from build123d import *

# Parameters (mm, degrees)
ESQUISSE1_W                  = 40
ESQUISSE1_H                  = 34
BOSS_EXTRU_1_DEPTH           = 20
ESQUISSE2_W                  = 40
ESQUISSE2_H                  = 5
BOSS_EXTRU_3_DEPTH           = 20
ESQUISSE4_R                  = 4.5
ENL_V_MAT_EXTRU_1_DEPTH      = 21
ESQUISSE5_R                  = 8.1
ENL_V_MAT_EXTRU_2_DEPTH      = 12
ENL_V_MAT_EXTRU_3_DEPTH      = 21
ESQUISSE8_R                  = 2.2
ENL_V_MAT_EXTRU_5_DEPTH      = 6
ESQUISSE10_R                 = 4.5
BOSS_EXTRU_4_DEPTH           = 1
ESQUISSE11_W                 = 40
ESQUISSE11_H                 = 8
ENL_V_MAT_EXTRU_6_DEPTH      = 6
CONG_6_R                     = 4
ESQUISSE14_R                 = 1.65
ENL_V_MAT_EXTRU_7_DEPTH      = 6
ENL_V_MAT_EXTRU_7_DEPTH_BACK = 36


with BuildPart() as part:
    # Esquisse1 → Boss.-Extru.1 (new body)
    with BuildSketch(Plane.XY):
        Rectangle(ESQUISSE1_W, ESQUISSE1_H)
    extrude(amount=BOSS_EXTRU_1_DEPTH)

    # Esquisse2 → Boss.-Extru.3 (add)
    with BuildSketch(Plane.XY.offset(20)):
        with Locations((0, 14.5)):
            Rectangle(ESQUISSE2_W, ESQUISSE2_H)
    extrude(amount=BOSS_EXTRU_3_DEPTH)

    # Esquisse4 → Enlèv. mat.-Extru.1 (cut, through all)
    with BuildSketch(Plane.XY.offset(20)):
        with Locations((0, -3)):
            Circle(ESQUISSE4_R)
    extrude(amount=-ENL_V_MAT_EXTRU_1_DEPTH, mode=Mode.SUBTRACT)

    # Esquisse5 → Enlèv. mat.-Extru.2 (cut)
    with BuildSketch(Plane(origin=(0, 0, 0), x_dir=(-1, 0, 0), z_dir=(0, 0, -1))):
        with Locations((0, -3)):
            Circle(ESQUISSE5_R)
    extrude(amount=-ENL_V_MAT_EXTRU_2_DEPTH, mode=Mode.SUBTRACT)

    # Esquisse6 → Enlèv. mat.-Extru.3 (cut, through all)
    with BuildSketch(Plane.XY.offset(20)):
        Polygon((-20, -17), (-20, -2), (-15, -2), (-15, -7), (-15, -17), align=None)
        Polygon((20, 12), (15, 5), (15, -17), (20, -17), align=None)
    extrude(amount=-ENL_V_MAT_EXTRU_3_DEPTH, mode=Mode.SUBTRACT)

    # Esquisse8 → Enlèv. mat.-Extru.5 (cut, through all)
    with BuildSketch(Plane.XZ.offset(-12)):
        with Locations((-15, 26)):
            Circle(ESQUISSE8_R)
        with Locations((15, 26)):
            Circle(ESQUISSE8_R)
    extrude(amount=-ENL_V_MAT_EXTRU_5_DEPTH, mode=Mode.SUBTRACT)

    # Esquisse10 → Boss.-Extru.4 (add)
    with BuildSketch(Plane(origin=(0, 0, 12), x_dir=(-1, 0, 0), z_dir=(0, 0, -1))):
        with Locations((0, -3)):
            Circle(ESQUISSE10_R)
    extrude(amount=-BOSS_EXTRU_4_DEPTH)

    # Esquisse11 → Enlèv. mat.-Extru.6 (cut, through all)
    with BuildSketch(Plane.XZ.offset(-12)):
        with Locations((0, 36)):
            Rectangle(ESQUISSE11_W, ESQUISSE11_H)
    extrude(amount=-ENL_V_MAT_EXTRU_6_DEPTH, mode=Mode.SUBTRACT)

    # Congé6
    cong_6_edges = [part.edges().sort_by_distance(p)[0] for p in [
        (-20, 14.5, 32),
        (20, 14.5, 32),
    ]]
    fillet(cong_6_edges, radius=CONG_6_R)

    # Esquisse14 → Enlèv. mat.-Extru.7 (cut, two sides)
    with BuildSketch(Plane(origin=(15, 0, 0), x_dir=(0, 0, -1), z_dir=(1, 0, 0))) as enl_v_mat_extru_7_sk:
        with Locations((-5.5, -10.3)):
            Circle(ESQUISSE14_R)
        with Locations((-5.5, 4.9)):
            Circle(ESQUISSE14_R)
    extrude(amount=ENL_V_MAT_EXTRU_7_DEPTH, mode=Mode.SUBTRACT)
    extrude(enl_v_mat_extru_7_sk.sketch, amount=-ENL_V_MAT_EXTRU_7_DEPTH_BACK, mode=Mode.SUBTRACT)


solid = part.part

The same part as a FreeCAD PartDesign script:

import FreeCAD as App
import Part
import Sketcher

V = App.Vector
Q = App.Units.Quantity


def edges_at(feature, points):
    """Names of the edges that pass closest to the given points."""
    edges = feature.Shape.Edges
    near = lambda p: min(range(len(edges)), key=lambda i: edges[i].distToShape(Part.Vertex(*p))[0])
    return sorted({f"Edge{near(p) + 1}" for p in points})

doc = App.newDocument("Part")
body = doc.addObject("PartDesign::Body", "Body")

sketch1 = body.newObject("Sketcher::SketchObject", "Sketch")
sketch1.AttachmentSupport = (doc.getObject("XY_Plane"), [""])
sketch1.MapMode = "FlatFace"
sketch1.addGeometry([
    Part.LineSegment(V(-20, 17, 0), V(-20, -17, 0)),
    Part.LineSegment(V(-20, -17, 0), V(20, -17, 0)),
    Part.LineSegment(V(20, -17, 0), V(20, 17, 0)),
    Part.LineSegment(V(20, 17, 0), V(-20, 17, 0)),
], False)
sketch1.addConstraint([
    Sketcher.Constraint("Coincident", 0, 2, 1, 1),
    Sketcher.Constraint("Coincident", 1, 2, 2, 1),
    Sketcher.Constraint("Coincident", 2, 2, 3, 1),
    Sketcher.Constraint("Coincident", 3, 2, 0, 1),
    Sketcher.Constraint("Vertical", 0),
    Sketcher.Constraint("Horizontal", 1),
    Sketcher.Constraint("Vertical", 2),
    Sketcher.Constraint("Horizontal", 3),
    Sketcher.Constraint("Symmetric", 0, 2, 2, 2, -1, 1),
    Sketcher.Constraint("DistanceX", 1, 1, 1, 2, Q("40 mm")),
    Sketcher.Constraint("DistanceY", 0, 2, 0, 1, Q("34 mm")),
])
pad1 = body.newObject("PartDesign::Pad", "Pad")
pad1.Profile = sketch1
pad1.Length = 20

sketch2 = body.newObject("Sketcher::SketchObject", "Sketch001")
sketch2.AttachmentSupport = (doc.getObject("XY_Plane"), [""])
sketch2.MapMode = "FlatFace"
sketch2.AttachmentOffset = App.Placement(V(0, 0, 20), App.Rotation())
sketch2.addGeometry([
    Part.LineSegment(V(-20, 17, 0), V(-20, 12, 0)),
    Part.LineSegment(V(-20, 12, 0), V(20, 12, 0)),
    Part.LineSegment(V(20, 12, 0), V(20, 17, 0)),
    Part.LineSegment(V(20, 17, 0), V(-20, 17, 0)),
], False)
sketch2.addConstraint([
    Sketcher.Constraint("Coincident", 0, 2, 1, 1),
    Sketcher.Constraint("Coincident", 1, 2, 2, 1),
    Sketcher.Constraint("Coincident", 2, 2, 3, 1),
    Sketcher.Constraint("Coincident", 3, 2, 0, 1),
    Sketcher.Constraint("Vertical", 0),
    Sketcher.Constraint("Horizontal", 1),
    Sketcher.Constraint("Vertical", 2),
    Sketcher.Constraint("Horizontal", 3),
    Sketcher.Constraint("DistanceX", 1, 1, 1, 2, Q("40 mm")),
    Sketcher.Constraint("DistanceY", 0, 2, 0, 1, Q("5 mm")),
    Sketcher.Constraint("DistanceX", 0, 2, -1, 1, Q("20 mm")),
    Sketcher.Constraint("DistanceY", -1, 1, 0, 2, Q("12 mm")),
])
pad2 = body.newObject("PartDesign::Pad", "Pad001")
pad2.Profile = sketch2
pad2.Length = 20

sketch3 = body.newObject("Sketcher::SketchObject", "Sketch002")
sketch3.AttachmentSupport = (doc.getObject("XY_Plane"), [""])
sketch3.MapMode = "FlatFace"
sketch3.AttachmentOffset = App.Placement(V(0, 0, 20), App.Rotation())
sketch3.addGeometry(Part.Circle(V(0, -3, 0), V(0, 0, 1), 4.5), False)
sketch3.addConstraint([
    Sketcher.Constraint("PointOnObject", 0, 3, -2),
    Sketcher.Constraint("Diameter", 0, Q("9 mm")),
    Sketcher.Constraint("DistanceY", 0, 3, -1, 1, Q("3 mm")),
])
pocket1 = body.newObject("PartDesign::Pocket", "Pocket")
pocket1.Profile = sketch3
pocket1.Type = "ThroughAll"

sketch4 = body.newObject("Sketcher::SketchObject", "Sketch003")
sketch4.AttachmentSupport = (doc.getObject("XY_Plane"), [""])
sketch4.MapMode = "FlatFace"
sketch4.addGeometry(Part.Circle(V(0, -3, 0), V(0, 0, 1), 8), False)
sketch4.addConstraint([
    Sketcher.Constraint("PointOnObject", 0, 3, -2),
    Sketcher.Constraint("Diameter", 0, Q("16.2 mm")),
    Sketcher.Constraint("DistanceY", 0, 3, -1, 1, Q("3 mm")),
])
pocket2 = body.newObject("PartDesign::Pocket", "Pocket001")
pocket2.Profile = sketch4
pocket2.Length = 12
pocket2.Reversed = True

sketch5 = body.newObject("Sketcher::SketchObject", "Sketch004")
sketch5.AttachmentSupport = (doc.getObject("XY_Plane"), [""])
sketch5.MapMode = "FlatFace"
sketch5.AttachmentOffset = App.Placement(V(0, 0, 20), App.Rotation())
sketch5.addGeometry([
    Part.LineSegment(V(-20, -2, 0), V(-20, -17, 0)),
    Part.LineSegment(V(-20, -17, 0), V(-15, -17, 0)),
    Part.LineSegment(V(-15, -17, 0), V(-15, -2, 0)),
    Part.LineSegment(V(-15, -2, 0), V(-20, -2, 0)),
    Part.LineSegment(V(20, 12, 0), V(15, 5, 0)),
    Part.LineSegment(V(15, 5, 0), V(15, -17, 0)),
    Part.LineSegment(V(15, -17, 0), V(20, -17, 0)),
    Part.LineSegment(V(20, -17, 0), V(20, 12, 0)),
], False)
sketch5.addConstraint([
    Sketcher.Constraint("Coincident", 0, 2, 1, 1),
    Sketcher.Constraint("Coincident", 1, 2, 2, 1),
    Sketcher.Constraint("Coincident", 2, 2, 3, 1),
    Sketcher.Constraint("Coincident", 3, 2, 0, 1),
    Sketcher.Constraint("Coincident", 4, 2, 5, 1),
    Sketcher.Constraint("Coincident", 5, 2, 6, 1),
    Sketcher.Constraint("Coincident", 6, 2, 7, 1),
    Sketcher.Constraint("Coincident", 7, 2, 4, 1),
    Sketcher.Constraint("Vertical", 0),
    Sketcher.Constraint("Horizontal", 1),
    Sketcher.Constraint("Vertical", 2),
    Sketcher.Constraint("Horizontal", 3),
    Sketcher.Constraint("Vertical", 5),
    Sketcher.Constraint("Horizontal", 6),
    Sketcher.Constraint("Vertical", 7),
    Sketcher.Constraint("Symmetric", 1, 2, 5, 2, -2),
    Sketcher.Constraint("Equal", 3, 6),
    Sketcher.Constraint("DistanceX", 1, 1, 1, 2, Q("5 mm")),
    Sketcher.Constraint("DistanceY", 0, 2, 0, 1, Q("15 mm")),
    Sketcher.Constraint("DistanceY", 5, 2, 5, 1, Q("22 mm")),
    Sketcher.Constraint("DistanceY", 7, 1, 7, 2, Q("29 mm")),
    Sketcher.Constraint("DistanceX", 0, 2, -1, 1, Q("20 mm")),
    Sketcher.Constraint("DistanceY", 0, 2, -1, 1, Q("17 mm")),
])
pocket3 = body.newObject("PartDesign::Pocket", "Pocket002")
pocket3.Profile = sketch5
pocket3.Type = "ThroughAll"

sketch6 = body.newObject("Sketcher::SketchObject", "Sketch005")
sketch6.AttachmentSupport = (doc.getObject("XZ_Plane"), [""])
sketch6.MapMode = "FlatFace"
sketch6.AttachmentOffset = App.Placement(V(0, 0, -12), App.Rotation())
sketch6.addGeometry([
    Part.Circle(V(-15, 26, 0), V(0, 0, 1), 2.2),
    Part.Circle(V(15, 26, 0), V(0, 0, 1), 2.2),
], False)
sketch6.addConstraint([
    Sketcher.Constraint("Equal", 0, 1),
    Sketcher.Constraint("Symmetric", 0, 3, 1, 3, -2),
    Sketcher.Constraint("Diameter", 0, Q("4.4 mm")),
    Sketcher.Constraint("DistanceX", 0, 3, -1, 1, Q("15 mm")),
    Sketcher.Constraint("DistanceY", -1, 1, 0, 3, Q("26 mm")),
])
pocket4 = body.newObject("PartDesign::Pocket", "Pocket003")
pocket4.Profile = sketch6
pocket4.Type = "ThroughAll"

sketch7 = body.newObject("Sketcher::SketchObject", "Sketch006")
sketch7.AttachmentSupport = (doc.getObject("XY_Plane"), [""])
sketch7.MapMode = "FlatFace"
sketch7.AttachmentOffset = App.Placement(V(0, 0, 12), App.Rotation())
sketch7.addGeometry(Part.Circle(V(0, -3, 0), V(0, 0, 1), 4.5), False)
sketch7.addConstraint([
    Sketcher.Constraint("PointOnObject", 0, 3, -2),
    Sketcher.Constraint("Diameter", 0, Q("9 mm")),
    Sketcher.Constraint("DistanceY", 0, 3, -1, 1, Q("3 mm")),
])
pad3 = body.newObject("PartDesign::Pad", "Pad002")
pad3.Profile = sketch7
pad3.Length = 1

sketch8 = body.newObject("Sketcher::SketchObject", "Sketch007")
sketch8.AttachmentSupport = (doc.getObject("XZ_Plane"), [""])
sketch8.MapMode = "FlatFace"
sketch8.AttachmentOffset = App.Placement(V(0, 0, -12), App.Rotation())
sketch8.addGeometry([
    Part.LineSegment(V(-20, 40, 0), V(-20, 32, 0)),
    Part.LineSegment(V(-20, 32, 0), V(20, 32, 0)),
    Part.LineSegment(V(20, 32, 0), V(20, 40, 0)),
    Part.LineSegment(V(20, 40, 0), V(-20, 40, 0)),
], False)
sketch8.addConstraint([
    Sketcher.Constraint("Coincident", 0, 2, 1, 1),
    Sketcher.Constraint("Coincident", 1, 2, 2, 1),
    Sketcher.Constraint("Coincident", 2, 2, 3, 1),
    Sketcher.Constraint("Coincident", 3, 2, 0, 1),
    Sketcher.Constraint("Vertical", 0),
    Sketcher.Constraint("Horizontal", 1),
    Sketcher.Constraint("Vertical", 2),
    Sketcher.Constraint("Horizontal", 3),
    Sketcher.Constraint("DistanceX", 1, 1, 1, 2, Q("40 mm")),
    Sketcher.Constraint("DistanceY", 0, 2, 0, 1, Q("8 mm")),
    Sketcher.Constraint("DistanceX", 0, 2, -1, 1, Q("20 mm")),
    Sketcher.Constraint("DistanceY", -1, 1, 0, 2, Q("32 mm")),
])
pocket5 = body.newObject("PartDesign::Pocket", "Pocket004")
pocket5.Profile = sketch8
pocket5.Type = "ThroughAll"
doc.recompute()

fillet = body.newObject("PartDesign::Fillet", "Fillet")
fillet.Base = (pocket5, edges_at(pocket5, [(-20, 14.5, 32), (20, 14.5, 32)]))
fillet.Radius = 4

sketch9 = body.newObject("Sketcher::SketchObject", "Sketch008")
sketch9.AttachmentSupport = (doc.getObject("YZ_Plane"), [""])
sketch9.MapMode = "FlatFace"
sketch9.AttachmentOffset = App.Placement(V(0, 0, 15), App.Rotation())
sketch9.addGeometry([
    Part.Circle(V(-10.3, 5.5, 0), V(0, 0, 1), 1.6),
    Part.Circle(V(4.9, 5.5, 0), V(0, 0, 1), 1.6),
], False)
sketch9.addConstraint([
    Sketcher.Constraint("Equal", 0, 1),
    Sketcher.Constraint("Horizontal", 0, 3, 1, 3),
    Sketcher.Constraint("Diameter", 0, Q("3.3 mm")),
    Sketcher.Constraint("DistanceX", 0, 3, -1, 1, Q("10.3 mm")),
    Sketcher.Constraint("DistanceY", -1, 1, 0, 3, Q("5.5 mm")),
    Sketcher.Constraint("DistanceX", -1, 1, 1, 3, Q("4.9 mm")),
])
pocket6 = body.newObject("PartDesign::Pocket", "Pocket005")
pocket6.Profile = sketch9
pocket6.Type = "ThroughAll"
pocket6.Midplane = True

doc.recompute()
